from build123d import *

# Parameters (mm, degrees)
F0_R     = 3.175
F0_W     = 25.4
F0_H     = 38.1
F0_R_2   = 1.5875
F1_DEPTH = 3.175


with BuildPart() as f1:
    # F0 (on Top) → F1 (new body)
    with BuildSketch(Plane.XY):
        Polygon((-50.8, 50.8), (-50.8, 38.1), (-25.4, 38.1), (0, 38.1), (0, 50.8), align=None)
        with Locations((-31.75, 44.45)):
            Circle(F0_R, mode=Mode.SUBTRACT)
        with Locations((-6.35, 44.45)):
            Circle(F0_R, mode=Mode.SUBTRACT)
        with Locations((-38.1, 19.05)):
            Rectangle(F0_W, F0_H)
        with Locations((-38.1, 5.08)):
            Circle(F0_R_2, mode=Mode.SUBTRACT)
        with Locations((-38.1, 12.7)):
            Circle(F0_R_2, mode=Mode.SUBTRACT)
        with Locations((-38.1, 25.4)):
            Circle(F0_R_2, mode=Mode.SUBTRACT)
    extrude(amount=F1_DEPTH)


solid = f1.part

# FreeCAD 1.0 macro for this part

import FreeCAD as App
import Part
import Sketcher
from FreeCAD import Vector
Q = App.Units.Quantity


def add_polygon(sketch, points):
    """Adds a closed chain of lines whose ends are joined by coincident constraints."""
    first, n = sketch.GeometryCount, len(points)
    for a, b in zip(points, points[1:] + points[:1]):
        sketch.addGeometry(Part.LineSegment(App.Vector(*a, 0), App.Vector(*b, 0)), False)
    for i in range(n):
        sketch.addConstraint(Sketcher.Constraint("Coincident", first + i, 2, first + (i + 1) % n, 1))

doc = App.newDocument("Part")
body = doc.addObject("PartDesign::Body", "Body")

sketch1 = body.newObject("Sketcher::SketchObject", "Sketch")
sketch1.AttachmentSupport = (doc.getObject("XY_Plane"), [""])
sketch1.MapMode = "FlatFace"
add_polygon(sketch1, [(-50.8, 50.8), (-50.8, 0), (-25.4, 0), (-25.4, 38.1), (0, 38.1), (0, 50.8)])
sketch1.addGeometry(Part.Circle(Vector(-38.1, 5.1, 0), Vector(0, 0, 1), 1.6), False)
sketch1.addGeometry(Part.Circle(Vector(-38.1, 12.7, 0), Vector(0, 0, 1), 1.6), False)
sketch1.addGeometry(Part.Circle(Vector(-38.1, 25.4, 0), Vector(0, 0, 1), 1.6), False)
sketch1.addGeometry(Part.Circle(Vector(-31.8, 44.5, 0), Vector(0, 0, 1), 3.2), False)
sketch1.addGeometry(Part.Circle(Vector(-6.3, 44.5, 0), Vector(0, 0, 1), 3.2), False)
sketch1.addConstraint(Sketcher.Constraint("Vertical", 0))
sketch1.addConstraint(Sketcher.Constraint("Horizontal", 1))
sketch1.addConstraint(Sketcher.Constraint("Vertical", 2))
sketch1.addConstraint(Sketcher.Constraint("Horizontal", 3))
sketch1.addConstraint(Sketcher.Constraint("Vertical", 4))
sketch1.addConstraint(Sketcher.Constraint("Horizontal", 5))
sketch1.addConstraint(Sketcher.Constraint("Equal", 6, 7))
sketch1.addConstraint(Sketcher.Constraint("Equal", 7, 8))
sketch1.addConstraint(Sketcher.Constraint("Equal", 9, 10))
sketch1.addConstraint(Sketcher.Constraint("PointOnObject", 0, 2, -1))
sketch1.addConstraint(Sketcher.Constraint("PointOnObject", 3, 2, -2))
sketch1.addConstraint(Sketcher.Constraint("Horizontal", 9, 3, 10, 3))
sketch1.addConstraint(Sketcher.Constraint("Vertical", 6, 3, 7, 3))
sketch1.addConstraint(Sketcher.Constraint("Vertical", 7, 3, 8, 3))
sketch1.addConstraint(Sketcher.Constraint("Equal", 1, 3))
sketch1.addConstraint(Sketcher.Constraint("Equal", 5, 0))
sketch1.addConstraint(Sketcher.Constraint("Diameter", 9, Q("0.25 in")))
sketch1.addConstraint(Sketcher.Constraint("DistanceX", 1, 1, 1, 2, Q("1 in")))
sketch1.addConstraint(Sketcher.Constraint("Diameter", 6, Q("0.125 in")))
sketch1.addConstraint(Sketcher.Constraint("DistanceY", 2, 1, 2, 2, Q("1.5 in")))
sketch1.addConstraint(Sketcher.Constraint("DistanceY", -1, 1, 8, 3, Q("1 in")))
sketch1.addConstraint(Sketcher.Constraint("DistanceX", 9, 3, 10, 3, Q("1 in")))
sketch1.addConstraint(Sketcher.Constraint("DistanceY", 7, 3, 2, 2, Q("1 in")))
sketch1.addConstraint(Sketcher.Constraint("DistanceX", 6, 3, -1, 1, Q("1.5 in")))
sketch1.addConstraint(Sketcher.Constraint("DistanceY", -1, 1, 6, 3, Q("0.2 in")))
sketch1.addConstraint(Sketcher.Constraint("DistanceX", 9, 3, -1, 1, Q("1.25 in")))
sketch1.addConstraint(Sketcher.Constraint("DistanceY", -1, 1, 9, 3, Q("1.75 in")))
pad1 = body.newObject("PartDesign::Pad", "Pad")
pad1.Profile = sketch1
pad1.Length = Q("0.125 in")

doc.recompute()
